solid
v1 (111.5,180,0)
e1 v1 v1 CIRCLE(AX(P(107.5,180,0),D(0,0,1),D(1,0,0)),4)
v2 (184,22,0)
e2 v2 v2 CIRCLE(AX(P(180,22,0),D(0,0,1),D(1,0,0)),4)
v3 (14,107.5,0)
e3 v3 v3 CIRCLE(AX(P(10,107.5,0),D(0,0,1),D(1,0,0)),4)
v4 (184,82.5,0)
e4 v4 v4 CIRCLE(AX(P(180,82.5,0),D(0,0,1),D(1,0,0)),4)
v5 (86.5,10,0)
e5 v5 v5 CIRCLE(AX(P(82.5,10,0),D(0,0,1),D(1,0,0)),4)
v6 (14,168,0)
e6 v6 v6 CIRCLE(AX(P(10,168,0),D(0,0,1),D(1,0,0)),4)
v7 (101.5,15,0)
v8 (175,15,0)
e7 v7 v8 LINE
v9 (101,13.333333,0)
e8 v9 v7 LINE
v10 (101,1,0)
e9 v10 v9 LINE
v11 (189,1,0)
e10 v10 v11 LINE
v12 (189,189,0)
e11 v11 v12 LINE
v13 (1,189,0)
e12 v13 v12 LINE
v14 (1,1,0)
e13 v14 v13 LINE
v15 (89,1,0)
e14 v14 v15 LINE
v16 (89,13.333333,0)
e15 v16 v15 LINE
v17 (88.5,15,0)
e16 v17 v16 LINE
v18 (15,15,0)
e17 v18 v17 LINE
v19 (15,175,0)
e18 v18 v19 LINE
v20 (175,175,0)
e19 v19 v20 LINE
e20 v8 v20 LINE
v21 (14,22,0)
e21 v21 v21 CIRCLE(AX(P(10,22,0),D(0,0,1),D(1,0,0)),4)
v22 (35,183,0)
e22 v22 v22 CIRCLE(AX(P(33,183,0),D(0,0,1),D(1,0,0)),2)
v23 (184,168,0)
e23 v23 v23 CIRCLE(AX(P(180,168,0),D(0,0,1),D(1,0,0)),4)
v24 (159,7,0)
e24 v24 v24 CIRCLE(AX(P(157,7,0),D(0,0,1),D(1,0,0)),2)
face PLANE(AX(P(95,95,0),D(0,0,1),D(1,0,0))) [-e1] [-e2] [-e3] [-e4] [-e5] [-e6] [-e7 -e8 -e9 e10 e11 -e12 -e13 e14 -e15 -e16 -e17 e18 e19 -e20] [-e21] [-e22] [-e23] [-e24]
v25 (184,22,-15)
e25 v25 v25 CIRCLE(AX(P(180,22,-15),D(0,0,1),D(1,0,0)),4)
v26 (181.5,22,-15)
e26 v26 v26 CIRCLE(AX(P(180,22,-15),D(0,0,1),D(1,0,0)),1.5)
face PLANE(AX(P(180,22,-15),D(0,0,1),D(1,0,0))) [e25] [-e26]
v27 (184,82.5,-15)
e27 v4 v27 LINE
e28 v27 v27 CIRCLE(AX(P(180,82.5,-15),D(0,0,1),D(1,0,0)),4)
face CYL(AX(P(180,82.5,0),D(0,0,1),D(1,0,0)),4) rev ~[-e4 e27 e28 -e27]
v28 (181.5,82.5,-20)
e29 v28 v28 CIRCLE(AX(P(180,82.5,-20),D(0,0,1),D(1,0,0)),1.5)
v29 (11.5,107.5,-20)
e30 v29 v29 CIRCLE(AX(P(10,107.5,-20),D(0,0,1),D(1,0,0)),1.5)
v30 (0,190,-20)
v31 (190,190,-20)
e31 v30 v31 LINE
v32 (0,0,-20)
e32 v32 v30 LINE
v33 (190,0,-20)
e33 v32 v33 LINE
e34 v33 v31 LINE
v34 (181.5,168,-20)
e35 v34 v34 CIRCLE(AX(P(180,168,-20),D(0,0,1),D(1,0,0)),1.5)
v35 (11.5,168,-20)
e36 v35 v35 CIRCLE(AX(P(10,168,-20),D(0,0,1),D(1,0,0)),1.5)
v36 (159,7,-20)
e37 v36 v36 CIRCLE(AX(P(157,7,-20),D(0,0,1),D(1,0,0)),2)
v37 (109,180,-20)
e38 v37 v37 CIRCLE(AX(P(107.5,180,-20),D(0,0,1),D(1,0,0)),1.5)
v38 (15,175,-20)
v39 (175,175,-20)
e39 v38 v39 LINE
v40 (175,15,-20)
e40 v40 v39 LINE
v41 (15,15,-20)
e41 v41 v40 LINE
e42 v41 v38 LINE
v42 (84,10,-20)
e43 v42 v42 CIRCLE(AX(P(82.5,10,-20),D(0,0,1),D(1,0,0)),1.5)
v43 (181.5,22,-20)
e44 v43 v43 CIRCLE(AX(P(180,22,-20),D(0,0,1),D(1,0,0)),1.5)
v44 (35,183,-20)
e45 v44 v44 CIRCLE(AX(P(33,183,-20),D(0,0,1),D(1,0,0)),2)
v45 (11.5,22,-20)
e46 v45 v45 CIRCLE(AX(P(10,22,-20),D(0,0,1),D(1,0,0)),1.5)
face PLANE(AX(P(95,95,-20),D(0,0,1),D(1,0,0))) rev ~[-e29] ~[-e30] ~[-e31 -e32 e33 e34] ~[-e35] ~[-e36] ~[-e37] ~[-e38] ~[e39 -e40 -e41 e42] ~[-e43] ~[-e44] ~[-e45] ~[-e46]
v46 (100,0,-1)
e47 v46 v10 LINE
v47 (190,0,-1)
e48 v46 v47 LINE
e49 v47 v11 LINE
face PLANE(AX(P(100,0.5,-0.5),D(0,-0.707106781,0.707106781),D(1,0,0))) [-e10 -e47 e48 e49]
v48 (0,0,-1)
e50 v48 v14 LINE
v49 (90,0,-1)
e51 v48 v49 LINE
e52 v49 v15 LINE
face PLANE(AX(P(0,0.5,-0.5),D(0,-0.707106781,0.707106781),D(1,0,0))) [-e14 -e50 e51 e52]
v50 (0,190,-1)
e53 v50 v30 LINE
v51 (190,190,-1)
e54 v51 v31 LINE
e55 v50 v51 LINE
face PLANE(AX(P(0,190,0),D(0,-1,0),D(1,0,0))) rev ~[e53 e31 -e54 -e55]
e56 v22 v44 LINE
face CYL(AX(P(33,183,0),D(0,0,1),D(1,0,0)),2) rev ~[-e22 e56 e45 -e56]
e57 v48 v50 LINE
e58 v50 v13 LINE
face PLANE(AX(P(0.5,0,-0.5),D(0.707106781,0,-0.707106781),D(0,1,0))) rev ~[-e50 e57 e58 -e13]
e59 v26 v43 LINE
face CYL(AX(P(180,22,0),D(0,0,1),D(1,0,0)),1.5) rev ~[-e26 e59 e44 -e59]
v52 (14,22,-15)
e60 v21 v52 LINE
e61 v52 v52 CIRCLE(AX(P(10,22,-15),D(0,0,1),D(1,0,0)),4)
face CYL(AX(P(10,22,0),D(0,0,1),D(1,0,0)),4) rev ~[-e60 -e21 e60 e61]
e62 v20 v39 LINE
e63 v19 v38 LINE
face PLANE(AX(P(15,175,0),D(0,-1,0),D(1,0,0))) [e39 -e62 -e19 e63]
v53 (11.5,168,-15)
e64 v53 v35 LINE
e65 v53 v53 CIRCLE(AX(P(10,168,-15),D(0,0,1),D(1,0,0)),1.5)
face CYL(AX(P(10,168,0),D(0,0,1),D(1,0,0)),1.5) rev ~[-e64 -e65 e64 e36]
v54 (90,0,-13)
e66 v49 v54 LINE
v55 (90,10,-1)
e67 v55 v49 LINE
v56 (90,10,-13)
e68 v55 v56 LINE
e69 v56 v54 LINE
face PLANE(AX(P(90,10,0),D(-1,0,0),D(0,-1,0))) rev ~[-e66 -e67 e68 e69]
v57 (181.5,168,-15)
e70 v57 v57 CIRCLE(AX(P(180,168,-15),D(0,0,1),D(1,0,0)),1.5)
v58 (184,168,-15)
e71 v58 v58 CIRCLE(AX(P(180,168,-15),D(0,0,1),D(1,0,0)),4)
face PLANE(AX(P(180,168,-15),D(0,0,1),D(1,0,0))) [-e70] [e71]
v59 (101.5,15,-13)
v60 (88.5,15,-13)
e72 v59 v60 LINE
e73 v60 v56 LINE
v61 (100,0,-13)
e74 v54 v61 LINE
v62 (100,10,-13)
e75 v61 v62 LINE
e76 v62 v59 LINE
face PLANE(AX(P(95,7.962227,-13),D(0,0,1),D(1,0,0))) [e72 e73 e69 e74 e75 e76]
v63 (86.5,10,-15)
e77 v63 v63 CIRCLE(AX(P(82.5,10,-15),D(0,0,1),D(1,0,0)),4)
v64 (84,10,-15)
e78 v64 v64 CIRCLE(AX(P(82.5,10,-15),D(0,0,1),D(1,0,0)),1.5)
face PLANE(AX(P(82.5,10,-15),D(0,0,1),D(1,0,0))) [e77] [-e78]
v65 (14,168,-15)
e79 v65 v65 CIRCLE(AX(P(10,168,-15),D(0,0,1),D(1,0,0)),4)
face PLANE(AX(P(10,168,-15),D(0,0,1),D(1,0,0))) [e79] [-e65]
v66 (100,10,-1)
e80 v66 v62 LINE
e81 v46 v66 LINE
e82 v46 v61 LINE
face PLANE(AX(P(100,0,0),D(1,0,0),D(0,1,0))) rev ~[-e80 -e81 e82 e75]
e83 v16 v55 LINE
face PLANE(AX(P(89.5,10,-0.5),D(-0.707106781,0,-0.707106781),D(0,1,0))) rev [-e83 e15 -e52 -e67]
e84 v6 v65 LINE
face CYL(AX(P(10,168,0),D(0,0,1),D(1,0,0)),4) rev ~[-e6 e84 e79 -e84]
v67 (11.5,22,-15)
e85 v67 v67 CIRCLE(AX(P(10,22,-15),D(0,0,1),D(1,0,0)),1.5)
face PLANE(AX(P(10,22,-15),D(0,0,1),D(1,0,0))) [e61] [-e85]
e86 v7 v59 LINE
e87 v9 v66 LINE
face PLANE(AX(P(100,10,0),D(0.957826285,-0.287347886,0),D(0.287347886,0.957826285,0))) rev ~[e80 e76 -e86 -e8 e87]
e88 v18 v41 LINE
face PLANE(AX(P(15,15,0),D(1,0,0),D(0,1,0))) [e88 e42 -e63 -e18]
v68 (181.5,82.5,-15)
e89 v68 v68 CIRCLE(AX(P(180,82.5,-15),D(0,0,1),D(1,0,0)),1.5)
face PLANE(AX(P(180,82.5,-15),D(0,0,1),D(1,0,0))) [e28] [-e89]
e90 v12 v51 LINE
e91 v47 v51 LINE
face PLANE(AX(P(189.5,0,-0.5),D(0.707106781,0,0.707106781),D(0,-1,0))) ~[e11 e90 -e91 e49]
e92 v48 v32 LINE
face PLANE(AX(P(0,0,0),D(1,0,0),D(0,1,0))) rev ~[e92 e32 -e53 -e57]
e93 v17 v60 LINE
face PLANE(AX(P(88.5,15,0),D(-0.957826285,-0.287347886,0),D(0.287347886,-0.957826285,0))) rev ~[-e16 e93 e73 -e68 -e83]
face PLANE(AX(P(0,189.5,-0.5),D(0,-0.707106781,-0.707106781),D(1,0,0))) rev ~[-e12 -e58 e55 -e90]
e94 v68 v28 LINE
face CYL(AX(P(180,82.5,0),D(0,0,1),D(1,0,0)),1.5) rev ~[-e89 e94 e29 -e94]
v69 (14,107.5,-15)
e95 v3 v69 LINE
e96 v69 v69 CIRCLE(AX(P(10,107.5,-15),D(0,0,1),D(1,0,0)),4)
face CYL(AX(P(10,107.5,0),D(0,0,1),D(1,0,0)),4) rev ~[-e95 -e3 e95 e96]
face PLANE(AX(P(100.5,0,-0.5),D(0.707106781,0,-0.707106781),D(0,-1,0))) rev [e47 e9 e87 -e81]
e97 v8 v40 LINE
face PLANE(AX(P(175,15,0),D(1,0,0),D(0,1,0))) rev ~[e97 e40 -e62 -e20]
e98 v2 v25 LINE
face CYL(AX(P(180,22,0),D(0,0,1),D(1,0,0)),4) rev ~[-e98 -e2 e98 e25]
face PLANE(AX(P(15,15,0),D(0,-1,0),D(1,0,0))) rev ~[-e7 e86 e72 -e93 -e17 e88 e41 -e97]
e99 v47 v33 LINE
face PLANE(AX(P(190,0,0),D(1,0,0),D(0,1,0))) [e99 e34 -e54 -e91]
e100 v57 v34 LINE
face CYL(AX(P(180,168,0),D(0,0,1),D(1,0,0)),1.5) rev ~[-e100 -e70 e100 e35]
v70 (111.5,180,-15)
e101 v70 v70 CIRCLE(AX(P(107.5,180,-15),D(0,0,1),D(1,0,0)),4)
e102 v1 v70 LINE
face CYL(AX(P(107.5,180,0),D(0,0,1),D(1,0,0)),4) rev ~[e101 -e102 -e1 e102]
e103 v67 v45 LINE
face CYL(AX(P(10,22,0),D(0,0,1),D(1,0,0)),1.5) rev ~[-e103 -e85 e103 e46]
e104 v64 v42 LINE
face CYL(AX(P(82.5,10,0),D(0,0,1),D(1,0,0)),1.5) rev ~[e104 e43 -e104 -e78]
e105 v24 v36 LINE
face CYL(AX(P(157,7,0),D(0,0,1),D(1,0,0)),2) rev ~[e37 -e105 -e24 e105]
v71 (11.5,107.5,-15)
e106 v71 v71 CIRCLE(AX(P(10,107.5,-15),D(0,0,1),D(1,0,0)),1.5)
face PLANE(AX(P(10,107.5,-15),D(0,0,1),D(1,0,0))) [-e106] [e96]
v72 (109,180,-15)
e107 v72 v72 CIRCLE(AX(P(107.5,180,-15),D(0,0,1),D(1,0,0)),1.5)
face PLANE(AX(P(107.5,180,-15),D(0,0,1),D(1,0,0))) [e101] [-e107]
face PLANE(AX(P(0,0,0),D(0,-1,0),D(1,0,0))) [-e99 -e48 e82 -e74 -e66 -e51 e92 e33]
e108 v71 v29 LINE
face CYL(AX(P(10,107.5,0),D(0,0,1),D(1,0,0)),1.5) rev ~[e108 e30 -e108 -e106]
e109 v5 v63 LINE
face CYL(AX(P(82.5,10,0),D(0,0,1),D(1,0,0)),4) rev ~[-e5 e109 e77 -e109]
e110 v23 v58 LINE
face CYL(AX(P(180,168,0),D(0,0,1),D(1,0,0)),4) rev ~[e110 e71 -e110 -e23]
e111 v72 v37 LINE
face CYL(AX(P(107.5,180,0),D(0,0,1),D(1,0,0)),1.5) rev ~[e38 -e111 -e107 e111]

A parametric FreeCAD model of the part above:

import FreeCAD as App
import Part
import Sketcher
from FreeCAD import Vector


def edges_at(feature, points):
    """Names of the edges that pass closest to the given points."""
    edges = feature.Shape.Edges
    near = lambda p: min(range(len(edges)), key=lambda i: edges[i].distToShape(Part.Vertex(*p))[0])
    return sorted({f"Edge{near(p) + 1}" for p in points})


def add_polygon(sketch, points):
    """Adds a closed chain of lines whose ends are joined by coincident constraints."""
    first, n = sketch.GeometryCount, len(points)
    for a, b in zip(points, points[1:] + points[:1]):
        sketch.addGeometry(Part.LineSegment(App.Vector(*a, 0), App.Vector(*b, 0)), False)
    for i in range(n):
        sketch.addConstraint(Sketcher.Constraint("Coincident", first + i, 2, first + (i + 1) % n, 1))

doc = App.newDocument("Part")
params = doc.addObject("Spreadsheet::Sheet", "Params")
for row, (alias, value) in enumerate([
    ("sketch1_width", "190 mm"),
    ("sketch1_width2", "160 mm"),
    ("pad1_length", "20 mm"),
    ("sketch2_diameter", "3 mm"),
    ("sketch2_diameter2", "4 mm"),
    ("sketch3_diameter", "8 mm"),
    ("pocket2_length", "15 mm"),
    ("sketch4_width", "10 mm"),
    ("sketch4_width2", "13 mm"),
    ("pocket3_length", "13 mm"),
    ("chamfer_size", "1 mm"),
], start=1):
    params.set(f"A{row}", alias)
    params.set(f"B{row}", "=" + value)
    params.setAlias(f"B{row}", alias)

body = doc.addObject("PartDesign::Body", "Body")

# Sketch on XY plane
sketch1 = body.newObject("Sketcher::SketchObject", "Sketch")
sketch1.AttachmentSupport = (doc.getObject("XY_Plane"), [""])
sketch1.MapMode = "FlatFace"
add_polygon(sketch1, [(0, 190), (0, 0), (190, 0), (190, 190)])  # lines 0-3
add_polygon(sketch1, [(175, 15), (15, 15), (15, 175), (175, 175)])  # lines 4-7
sketch1.addConstraint(Sketcher.Constraint("Vertical", 0))
sketch1.addConstraint(Sketcher.Constraint("Horizontal", 1))
sketch1.addConstraint(Sketcher.Constraint("Vertical", 2))
sketch1.addConstraint(Sketcher.Constraint("Horizontal", 3))
sketch1.addConstraint(Sketcher.Constraint("Horizontal", 4))
sketch1.addConstraint(Sketcher.Constraint("Vertical", 5))
sketch1.addConstraint(Sketcher.Constraint("Horizontal", 6))
sketch1.addConstraint(Sketcher.Constraint("Vertical", 7))
sketch1.addConstraint(Sketcher.Constraint("Coincident", 0, 2, -1, 1))
sketch1.addConstraint(Sketcher.Constraint("Equal", 3, 0))
sketch1.addConstraint(Sketcher.Constraint("Equal", 6, 5))
sketch1.addConstraint(Sketcher.Constraint("DistanceX", 1, 1, 1, 2, 190.0))
sketch1.addConstraint(Sketcher.Constraint("DistanceX", 4, 2, 4, 1, 160.0))
sketch1.addConstraint(Sketcher.Constraint("DistanceX", -1, 1, 4, 2, 15.0))
sketch1.addConstraint(Sketcher.Constraint("DistanceY", -1, 1, 4, 2, 15.0))
sketch1.setExpression("Constraints[19]", "Params.sketch1_width")
sketch1.setExpression("Constraints[20]", "Params.sketch1_width2")
pad1 = body.newObject("PartDesign::Pad", "Pad")
pad1.Profile = sketch1
pad1.setExpression("Length", "Params.pad1_length")
pad1.Reversed = True

# Sketch on XY plane
sketch2 = body.newObject("Sketcher::SketchObject", "Sketch001")
sketch2.AttachmentSupport = (doc.getObject("XY_Plane"), [""])
sketch2.MapMode = "FlatFace"
sketch2.addGeometry(Part.Circle(Vector(10, 22, 0), Vector(0, 0, 1), 1.5), False)
sketch2.addGeometry(Part.Circle(Vector(10, 107.5, 0), Vector(0, 0, 1), 1.5), False)
sketch2.addGeometry(Part.Circle(Vector(10, 168, 0), Vector(0, 0, 1), 1.5), False)
sketch2.addGeometry(Part.Circle(Vector(107.5, 180, 0), Vector(0, 0, 1), 1.5), False)
sketch2.addGeometry(Part.Circle(Vector(180, 168, 0), Vector(0, 0, 1), 1.5), False)
sketch2.addGeometry(Part.Circle(Vector(180, 82.5, 0), Vector(0, 0, 1), 1.5), False)
sketch2.addGeometry(Part.Circle(Vector(180, 22, 0), Vector(0, 0, 1), 1.5), False)
sketch2.addGeometry(Part.Circle(Vector(82.5, 10, 0), Vector(0, 0, 1), 1.5), False)
sketch2.addGeometry(Part.Circle(Vector(33, 183, 0), Vector(0, 0, 1), 2), False)
sketch2.addGeometry(Part.Circle(Vector(157, 7, 0), Vector(0, 0, 1), 2), False)
sketch2.addConstraint(Sketcher.Constraint("Equal", 0, 1))
sketch2.addConstraint(Sketcher.Constraint("Equal", 1, 2))
sketch2.addConstraint(Sketcher.Constraint("Equal", 2, 3))
sketch2.addConstraint(Sketcher.Constraint("Equal", 3, 4))
sketch2.addConstraint(Sketcher.Constraint("Equal", 4, 5))
sketch2.addConstraint(Sketcher.Constraint("Equal", 5, 6))
sketch2.addConstraint(Sketcher.Constraint("Equal", 6, 7))
sketch2.addConstraint(Sketcher.Constraint("Equal", 8, 9))
sketch2.addConstraint(Sketcher.Constraint("Horizontal", 2, 3, 4, 3))
sketch2.addConstraint(Sketcher.Constraint("Horizontal", 0, 3, 6, 3))
sketch2.addConstraint(Sketcher.Constraint("Vertical", 0, 3, 1, 3))
sketch2.addConstraint(Sketcher.Constraint("Vertical", 1, 3, 2, 3))
sketch2.addConstraint(Sketcher.Constraint("Vertical", 4, 3, 5, 3))
sketch2.addConstraint(Sketcher.Constraint("Vertical", 5, 3, 6, 3))
sketch2.addConstraint(Sketcher.Constraint("Diameter", 0, 3.0))
sketch2.addConstraint(Sketcher.Constraint("Diameter", 8, 4.0))
sketch2.addConstraint(Sketcher.Constraint("DistanceX", -1, 1, 0, 3, 10.0))
sketch2.addConstraint(Sketcher.Constraint("DistanceY", -1, 1, 0, 3, 22.0))
sketch2.addConstraint(Sketcher.Constraint("DistanceY", -1, 1, 2, 3, 168.0))
sketch2.addConstraint(Sketcher.Constraint("DistanceY", -1, 1, 3, 3, 180.0))
sketch2.addConstraint(Sketcher.Constraint("DistanceX", -1, 1, 4, 3, 180.0))
sketch2.addConstraint(Sketcher.Constraint("DistanceY", -1, 1, 7, 3, 10.0))
sketch2.addConstraint(Sketcher.Constraint("DistanceX", -1, 1, 8, 3, 33.0))
sketch2.addConstraint(Sketcher.Constraint("DistanceY", -1, 1, 8, 3, 183.0))
sketch2.addConstraint(Sketcher.Constraint("DistanceX", -1, 1, 9, 3, 157.0))
sketch2.addConstraint(Sketcher.Constraint("DistanceY", -1, 1, 9, 3, 7.0))
sketch2.addConstraint(Sketcher.Constraint("DistanceY", 5, 3, 1, 3, 25.0))
sketch2.addConstraint(Sketcher.Constraint("DistanceX", 7, 3, 3, 3, 25.0))
sketch2.addConstraint(Sketcher.Constraint("DistanceY", -1, 1, 1, 3, 107.5))
sketch2.addConstraint(Sketcher.Constraint("DistanceX", -1, 1, 3, 3, 107.5))
sketch2.setExpression("Constraints[14]", "Params.sketch2_diameter")
sketch2.setExpression("Constraints[15]", "Params.sketch2_diameter2")
pocket1 = body.newObject("PartDesign::Pocket", "Pocket")
pocket1.Profile = sketch2
pocket1.Type = "ThroughAll"

# Sketch on XY plane
sketch3 = body.newObject("Sketcher::SketchObject", "Sketch002")
sketch3.AttachmentSupport = (doc.getObject("XY_Plane"), [""])
sketch3.MapMode = "FlatFace"
sketch3.addGeometry(Part.Circle(Vector(107.5, 180, 0), Vector(0, 0, 1), 4), False)
sketch3.addGeometry(Part.Circle(Vector(180, 168, 0), Vector(0, 0, 1), 4), False)
sketch3.addGeometry(Part.Circle(Vector(10, 168, 0), Vector(0, 0, 1), 4), False)
sketch3.addGeometry(Part.Circle(Vector(10, 107.5, 0), Vector(0, 0, 1), 4), False)
sketch3.addGeometry(Part.Circle(Vector(10, 22, 0), Vector(0, 0, 1), 4), False)
sketch3.addGeometry(Part.Circle(Vector(82.5, 10, 0), Vector(0, 0, 1), 4), False)
sketch3.addGeometry(Part.Circle(Vector(180, 22, 0), Vector(0, 0, 1), 4), False)
sketch3.addGeometry(Part.Circle(Vector(180, 82.5, 0), Vector(0, 0, 1), 4), False)
sketch3.addConstraint(Sketcher.Constraint("Equal", 0, 1))
sketch3.addConstraint(Sketcher.Constraint("Equal", 1, 2))
sketch3.addConstraint(Sketcher.Constraint("Equal", 2, 3))
sketch3.addConstraint(Sketcher.Constraint("Equal", 3, 4))
sketch3.addConstraint(Sketcher.Constraint("Equal", 4, 5))
sketch3.addConstraint(Sketcher.Constraint("Equal", 5, 6))
sketch3.addConstraint(Sketcher.Constraint("Equal", 6, 7))
sketch3.addConstraint(Sketcher.Constraint("Horizontal", 1, 3, 2, 3))
sketch3.addConstraint(Sketcher.Constraint("Horizontal", 4, 3, 6, 3))
sketch3.addConstraint(Sketcher.Constraint("Vertical", 2, 3, 3, 3))
sketch3.addConstraint(Sketcher.Constraint("Vertical", 3, 3, 4, 3))
sketch3.addConstraint(Sketcher.Constraint("Vertical", 1, 3, 6, 3))
sketch3.addConstraint(Sketcher.Constraint("Vertical", 6, 3, 7, 3))
sketch3.addConstraint(Sketcher.Constraint("Diameter", 0, 8.0))
sketch3.addConstraint(Sketcher.Constraint("DistanceY", -1, 1, 0, 3, 180.0))
sketch3.addConstraint(Sketcher.Constraint("DistanceX", -1, 1, 1, 3, 180.0))
sketch3.addConstraint(Sketcher.Constraint("DistanceY", -1, 1, 1, 3, 168.0))
sketch3.addConstraint(Sketcher.Constraint("DistanceX", -1, 1, 2, 3, 10.0))
sketch3.addConstraint(Sketcher.Constraint("DistanceY", -1, 1, 4, 3, 22.0))
sketch3.addConstraint(Sketcher.Constraint("DistanceY", -1, 1, 5, 3, 10.0))
sketch3.addConstraint(Sketcher.Constraint("DistanceX", 5, 3, 0, 3, 25.0))
sketch3.addConstraint(Sketcher.Constraint("DistanceY", 7, 3, 3, 3, 25.0))
sketch3.addConstraint(Sketcher.Constraint("DistanceX", -1, 1, 0, 3, 107.5))
sketch3.addConstraint(Sketcher.Constraint("DistanceY", -1, 1, 3, 3, 107.5))
sketch3.setExpression("Constraints[13]", "Params.sketch3_diameter")
pocket2 = body.newObject("PartDesign::Pocket", "Pocket001")
pocket2.Profile = sketch3
pocket2.setExpression("Length", "Params.pocket2_length")

# Sketch on XY plane
sketch4 = body.newObject("Sketcher::SketchObject", "Sketch003")
sketch4.AttachmentSupport = (doc.getObject("XY_Plane"), [""])
sketch4.MapMode = "FlatFace"
add_polygon(sketch4, [(90, 0), (100, 0), (100, 10), (101.5, 15), (88.5, 15), (90, 10)])  # lines 0-5
sketch4.addConstraint(Sketcher.Constraint("Horizontal", 0))
sketch4.addConstraint(Sketcher.Constraint("Vertical", 1))
sketch4.addConstraint(Sketcher.Constraint("Horizontal", 3))
sketch4.addConstraint(Sketcher.Constraint("Vertical", 5))
sketch4.addConstraint(Sketcher.Constraint("PointOnObject", 0, 2, -1))
sketch4.addConstraint(Sketcher.Constraint("Horizontal", 1, 2, 4, 2))
sketch4.addConstraint(Sketcher.Constraint("Equal", 0, 1))
sketch4.addConstraint(Sketcher.Constraint("Equal", 2, 4))
sketch4.addConstraint(Sketcher.Constraint("DistanceX", 0, 1, 0, 2, 10.0))
sketch4.addConstraint(Sketcher.Constraint("DistanceX", 3, 2, 3, 1, 13.0))
sketch4.addConstraint(Sketcher.Constraint("DistanceX", -1, 1, 0, 2, 100.0))
sketch4.addConstraint(Sketcher.Constraint("DistanceY", -1, 1, 2, 2, 15.0))
sketch4.setExpression("Constraints[14]", "Params.sketch4_width")
sketch4.setExpression("Constraints[15]", "Params.sketch4_width2")
pocket3 = body.newObject("PartDesign::Pocket", "Pocket002")
pocket3.Profile = sketch4
pocket3.setExpression("Length", "Params.pocket3_length")
doc.recompute()

chamfer = body.newObject("PartDesign::Chamfer", "Chamfer")
chamfer.Base = (pocket3, edges_at(pocket3, [
    (0, 95, 0),
    (45, 0, 0),
    (145, 0, 0),
    (190, 95, 0),
    (95, 190, 0),
    (100, 5, 0),
    (90, 5, 0),
]))
chamfer.setExpression("Size", "Params.chamfer_size")

doc.recompute()
